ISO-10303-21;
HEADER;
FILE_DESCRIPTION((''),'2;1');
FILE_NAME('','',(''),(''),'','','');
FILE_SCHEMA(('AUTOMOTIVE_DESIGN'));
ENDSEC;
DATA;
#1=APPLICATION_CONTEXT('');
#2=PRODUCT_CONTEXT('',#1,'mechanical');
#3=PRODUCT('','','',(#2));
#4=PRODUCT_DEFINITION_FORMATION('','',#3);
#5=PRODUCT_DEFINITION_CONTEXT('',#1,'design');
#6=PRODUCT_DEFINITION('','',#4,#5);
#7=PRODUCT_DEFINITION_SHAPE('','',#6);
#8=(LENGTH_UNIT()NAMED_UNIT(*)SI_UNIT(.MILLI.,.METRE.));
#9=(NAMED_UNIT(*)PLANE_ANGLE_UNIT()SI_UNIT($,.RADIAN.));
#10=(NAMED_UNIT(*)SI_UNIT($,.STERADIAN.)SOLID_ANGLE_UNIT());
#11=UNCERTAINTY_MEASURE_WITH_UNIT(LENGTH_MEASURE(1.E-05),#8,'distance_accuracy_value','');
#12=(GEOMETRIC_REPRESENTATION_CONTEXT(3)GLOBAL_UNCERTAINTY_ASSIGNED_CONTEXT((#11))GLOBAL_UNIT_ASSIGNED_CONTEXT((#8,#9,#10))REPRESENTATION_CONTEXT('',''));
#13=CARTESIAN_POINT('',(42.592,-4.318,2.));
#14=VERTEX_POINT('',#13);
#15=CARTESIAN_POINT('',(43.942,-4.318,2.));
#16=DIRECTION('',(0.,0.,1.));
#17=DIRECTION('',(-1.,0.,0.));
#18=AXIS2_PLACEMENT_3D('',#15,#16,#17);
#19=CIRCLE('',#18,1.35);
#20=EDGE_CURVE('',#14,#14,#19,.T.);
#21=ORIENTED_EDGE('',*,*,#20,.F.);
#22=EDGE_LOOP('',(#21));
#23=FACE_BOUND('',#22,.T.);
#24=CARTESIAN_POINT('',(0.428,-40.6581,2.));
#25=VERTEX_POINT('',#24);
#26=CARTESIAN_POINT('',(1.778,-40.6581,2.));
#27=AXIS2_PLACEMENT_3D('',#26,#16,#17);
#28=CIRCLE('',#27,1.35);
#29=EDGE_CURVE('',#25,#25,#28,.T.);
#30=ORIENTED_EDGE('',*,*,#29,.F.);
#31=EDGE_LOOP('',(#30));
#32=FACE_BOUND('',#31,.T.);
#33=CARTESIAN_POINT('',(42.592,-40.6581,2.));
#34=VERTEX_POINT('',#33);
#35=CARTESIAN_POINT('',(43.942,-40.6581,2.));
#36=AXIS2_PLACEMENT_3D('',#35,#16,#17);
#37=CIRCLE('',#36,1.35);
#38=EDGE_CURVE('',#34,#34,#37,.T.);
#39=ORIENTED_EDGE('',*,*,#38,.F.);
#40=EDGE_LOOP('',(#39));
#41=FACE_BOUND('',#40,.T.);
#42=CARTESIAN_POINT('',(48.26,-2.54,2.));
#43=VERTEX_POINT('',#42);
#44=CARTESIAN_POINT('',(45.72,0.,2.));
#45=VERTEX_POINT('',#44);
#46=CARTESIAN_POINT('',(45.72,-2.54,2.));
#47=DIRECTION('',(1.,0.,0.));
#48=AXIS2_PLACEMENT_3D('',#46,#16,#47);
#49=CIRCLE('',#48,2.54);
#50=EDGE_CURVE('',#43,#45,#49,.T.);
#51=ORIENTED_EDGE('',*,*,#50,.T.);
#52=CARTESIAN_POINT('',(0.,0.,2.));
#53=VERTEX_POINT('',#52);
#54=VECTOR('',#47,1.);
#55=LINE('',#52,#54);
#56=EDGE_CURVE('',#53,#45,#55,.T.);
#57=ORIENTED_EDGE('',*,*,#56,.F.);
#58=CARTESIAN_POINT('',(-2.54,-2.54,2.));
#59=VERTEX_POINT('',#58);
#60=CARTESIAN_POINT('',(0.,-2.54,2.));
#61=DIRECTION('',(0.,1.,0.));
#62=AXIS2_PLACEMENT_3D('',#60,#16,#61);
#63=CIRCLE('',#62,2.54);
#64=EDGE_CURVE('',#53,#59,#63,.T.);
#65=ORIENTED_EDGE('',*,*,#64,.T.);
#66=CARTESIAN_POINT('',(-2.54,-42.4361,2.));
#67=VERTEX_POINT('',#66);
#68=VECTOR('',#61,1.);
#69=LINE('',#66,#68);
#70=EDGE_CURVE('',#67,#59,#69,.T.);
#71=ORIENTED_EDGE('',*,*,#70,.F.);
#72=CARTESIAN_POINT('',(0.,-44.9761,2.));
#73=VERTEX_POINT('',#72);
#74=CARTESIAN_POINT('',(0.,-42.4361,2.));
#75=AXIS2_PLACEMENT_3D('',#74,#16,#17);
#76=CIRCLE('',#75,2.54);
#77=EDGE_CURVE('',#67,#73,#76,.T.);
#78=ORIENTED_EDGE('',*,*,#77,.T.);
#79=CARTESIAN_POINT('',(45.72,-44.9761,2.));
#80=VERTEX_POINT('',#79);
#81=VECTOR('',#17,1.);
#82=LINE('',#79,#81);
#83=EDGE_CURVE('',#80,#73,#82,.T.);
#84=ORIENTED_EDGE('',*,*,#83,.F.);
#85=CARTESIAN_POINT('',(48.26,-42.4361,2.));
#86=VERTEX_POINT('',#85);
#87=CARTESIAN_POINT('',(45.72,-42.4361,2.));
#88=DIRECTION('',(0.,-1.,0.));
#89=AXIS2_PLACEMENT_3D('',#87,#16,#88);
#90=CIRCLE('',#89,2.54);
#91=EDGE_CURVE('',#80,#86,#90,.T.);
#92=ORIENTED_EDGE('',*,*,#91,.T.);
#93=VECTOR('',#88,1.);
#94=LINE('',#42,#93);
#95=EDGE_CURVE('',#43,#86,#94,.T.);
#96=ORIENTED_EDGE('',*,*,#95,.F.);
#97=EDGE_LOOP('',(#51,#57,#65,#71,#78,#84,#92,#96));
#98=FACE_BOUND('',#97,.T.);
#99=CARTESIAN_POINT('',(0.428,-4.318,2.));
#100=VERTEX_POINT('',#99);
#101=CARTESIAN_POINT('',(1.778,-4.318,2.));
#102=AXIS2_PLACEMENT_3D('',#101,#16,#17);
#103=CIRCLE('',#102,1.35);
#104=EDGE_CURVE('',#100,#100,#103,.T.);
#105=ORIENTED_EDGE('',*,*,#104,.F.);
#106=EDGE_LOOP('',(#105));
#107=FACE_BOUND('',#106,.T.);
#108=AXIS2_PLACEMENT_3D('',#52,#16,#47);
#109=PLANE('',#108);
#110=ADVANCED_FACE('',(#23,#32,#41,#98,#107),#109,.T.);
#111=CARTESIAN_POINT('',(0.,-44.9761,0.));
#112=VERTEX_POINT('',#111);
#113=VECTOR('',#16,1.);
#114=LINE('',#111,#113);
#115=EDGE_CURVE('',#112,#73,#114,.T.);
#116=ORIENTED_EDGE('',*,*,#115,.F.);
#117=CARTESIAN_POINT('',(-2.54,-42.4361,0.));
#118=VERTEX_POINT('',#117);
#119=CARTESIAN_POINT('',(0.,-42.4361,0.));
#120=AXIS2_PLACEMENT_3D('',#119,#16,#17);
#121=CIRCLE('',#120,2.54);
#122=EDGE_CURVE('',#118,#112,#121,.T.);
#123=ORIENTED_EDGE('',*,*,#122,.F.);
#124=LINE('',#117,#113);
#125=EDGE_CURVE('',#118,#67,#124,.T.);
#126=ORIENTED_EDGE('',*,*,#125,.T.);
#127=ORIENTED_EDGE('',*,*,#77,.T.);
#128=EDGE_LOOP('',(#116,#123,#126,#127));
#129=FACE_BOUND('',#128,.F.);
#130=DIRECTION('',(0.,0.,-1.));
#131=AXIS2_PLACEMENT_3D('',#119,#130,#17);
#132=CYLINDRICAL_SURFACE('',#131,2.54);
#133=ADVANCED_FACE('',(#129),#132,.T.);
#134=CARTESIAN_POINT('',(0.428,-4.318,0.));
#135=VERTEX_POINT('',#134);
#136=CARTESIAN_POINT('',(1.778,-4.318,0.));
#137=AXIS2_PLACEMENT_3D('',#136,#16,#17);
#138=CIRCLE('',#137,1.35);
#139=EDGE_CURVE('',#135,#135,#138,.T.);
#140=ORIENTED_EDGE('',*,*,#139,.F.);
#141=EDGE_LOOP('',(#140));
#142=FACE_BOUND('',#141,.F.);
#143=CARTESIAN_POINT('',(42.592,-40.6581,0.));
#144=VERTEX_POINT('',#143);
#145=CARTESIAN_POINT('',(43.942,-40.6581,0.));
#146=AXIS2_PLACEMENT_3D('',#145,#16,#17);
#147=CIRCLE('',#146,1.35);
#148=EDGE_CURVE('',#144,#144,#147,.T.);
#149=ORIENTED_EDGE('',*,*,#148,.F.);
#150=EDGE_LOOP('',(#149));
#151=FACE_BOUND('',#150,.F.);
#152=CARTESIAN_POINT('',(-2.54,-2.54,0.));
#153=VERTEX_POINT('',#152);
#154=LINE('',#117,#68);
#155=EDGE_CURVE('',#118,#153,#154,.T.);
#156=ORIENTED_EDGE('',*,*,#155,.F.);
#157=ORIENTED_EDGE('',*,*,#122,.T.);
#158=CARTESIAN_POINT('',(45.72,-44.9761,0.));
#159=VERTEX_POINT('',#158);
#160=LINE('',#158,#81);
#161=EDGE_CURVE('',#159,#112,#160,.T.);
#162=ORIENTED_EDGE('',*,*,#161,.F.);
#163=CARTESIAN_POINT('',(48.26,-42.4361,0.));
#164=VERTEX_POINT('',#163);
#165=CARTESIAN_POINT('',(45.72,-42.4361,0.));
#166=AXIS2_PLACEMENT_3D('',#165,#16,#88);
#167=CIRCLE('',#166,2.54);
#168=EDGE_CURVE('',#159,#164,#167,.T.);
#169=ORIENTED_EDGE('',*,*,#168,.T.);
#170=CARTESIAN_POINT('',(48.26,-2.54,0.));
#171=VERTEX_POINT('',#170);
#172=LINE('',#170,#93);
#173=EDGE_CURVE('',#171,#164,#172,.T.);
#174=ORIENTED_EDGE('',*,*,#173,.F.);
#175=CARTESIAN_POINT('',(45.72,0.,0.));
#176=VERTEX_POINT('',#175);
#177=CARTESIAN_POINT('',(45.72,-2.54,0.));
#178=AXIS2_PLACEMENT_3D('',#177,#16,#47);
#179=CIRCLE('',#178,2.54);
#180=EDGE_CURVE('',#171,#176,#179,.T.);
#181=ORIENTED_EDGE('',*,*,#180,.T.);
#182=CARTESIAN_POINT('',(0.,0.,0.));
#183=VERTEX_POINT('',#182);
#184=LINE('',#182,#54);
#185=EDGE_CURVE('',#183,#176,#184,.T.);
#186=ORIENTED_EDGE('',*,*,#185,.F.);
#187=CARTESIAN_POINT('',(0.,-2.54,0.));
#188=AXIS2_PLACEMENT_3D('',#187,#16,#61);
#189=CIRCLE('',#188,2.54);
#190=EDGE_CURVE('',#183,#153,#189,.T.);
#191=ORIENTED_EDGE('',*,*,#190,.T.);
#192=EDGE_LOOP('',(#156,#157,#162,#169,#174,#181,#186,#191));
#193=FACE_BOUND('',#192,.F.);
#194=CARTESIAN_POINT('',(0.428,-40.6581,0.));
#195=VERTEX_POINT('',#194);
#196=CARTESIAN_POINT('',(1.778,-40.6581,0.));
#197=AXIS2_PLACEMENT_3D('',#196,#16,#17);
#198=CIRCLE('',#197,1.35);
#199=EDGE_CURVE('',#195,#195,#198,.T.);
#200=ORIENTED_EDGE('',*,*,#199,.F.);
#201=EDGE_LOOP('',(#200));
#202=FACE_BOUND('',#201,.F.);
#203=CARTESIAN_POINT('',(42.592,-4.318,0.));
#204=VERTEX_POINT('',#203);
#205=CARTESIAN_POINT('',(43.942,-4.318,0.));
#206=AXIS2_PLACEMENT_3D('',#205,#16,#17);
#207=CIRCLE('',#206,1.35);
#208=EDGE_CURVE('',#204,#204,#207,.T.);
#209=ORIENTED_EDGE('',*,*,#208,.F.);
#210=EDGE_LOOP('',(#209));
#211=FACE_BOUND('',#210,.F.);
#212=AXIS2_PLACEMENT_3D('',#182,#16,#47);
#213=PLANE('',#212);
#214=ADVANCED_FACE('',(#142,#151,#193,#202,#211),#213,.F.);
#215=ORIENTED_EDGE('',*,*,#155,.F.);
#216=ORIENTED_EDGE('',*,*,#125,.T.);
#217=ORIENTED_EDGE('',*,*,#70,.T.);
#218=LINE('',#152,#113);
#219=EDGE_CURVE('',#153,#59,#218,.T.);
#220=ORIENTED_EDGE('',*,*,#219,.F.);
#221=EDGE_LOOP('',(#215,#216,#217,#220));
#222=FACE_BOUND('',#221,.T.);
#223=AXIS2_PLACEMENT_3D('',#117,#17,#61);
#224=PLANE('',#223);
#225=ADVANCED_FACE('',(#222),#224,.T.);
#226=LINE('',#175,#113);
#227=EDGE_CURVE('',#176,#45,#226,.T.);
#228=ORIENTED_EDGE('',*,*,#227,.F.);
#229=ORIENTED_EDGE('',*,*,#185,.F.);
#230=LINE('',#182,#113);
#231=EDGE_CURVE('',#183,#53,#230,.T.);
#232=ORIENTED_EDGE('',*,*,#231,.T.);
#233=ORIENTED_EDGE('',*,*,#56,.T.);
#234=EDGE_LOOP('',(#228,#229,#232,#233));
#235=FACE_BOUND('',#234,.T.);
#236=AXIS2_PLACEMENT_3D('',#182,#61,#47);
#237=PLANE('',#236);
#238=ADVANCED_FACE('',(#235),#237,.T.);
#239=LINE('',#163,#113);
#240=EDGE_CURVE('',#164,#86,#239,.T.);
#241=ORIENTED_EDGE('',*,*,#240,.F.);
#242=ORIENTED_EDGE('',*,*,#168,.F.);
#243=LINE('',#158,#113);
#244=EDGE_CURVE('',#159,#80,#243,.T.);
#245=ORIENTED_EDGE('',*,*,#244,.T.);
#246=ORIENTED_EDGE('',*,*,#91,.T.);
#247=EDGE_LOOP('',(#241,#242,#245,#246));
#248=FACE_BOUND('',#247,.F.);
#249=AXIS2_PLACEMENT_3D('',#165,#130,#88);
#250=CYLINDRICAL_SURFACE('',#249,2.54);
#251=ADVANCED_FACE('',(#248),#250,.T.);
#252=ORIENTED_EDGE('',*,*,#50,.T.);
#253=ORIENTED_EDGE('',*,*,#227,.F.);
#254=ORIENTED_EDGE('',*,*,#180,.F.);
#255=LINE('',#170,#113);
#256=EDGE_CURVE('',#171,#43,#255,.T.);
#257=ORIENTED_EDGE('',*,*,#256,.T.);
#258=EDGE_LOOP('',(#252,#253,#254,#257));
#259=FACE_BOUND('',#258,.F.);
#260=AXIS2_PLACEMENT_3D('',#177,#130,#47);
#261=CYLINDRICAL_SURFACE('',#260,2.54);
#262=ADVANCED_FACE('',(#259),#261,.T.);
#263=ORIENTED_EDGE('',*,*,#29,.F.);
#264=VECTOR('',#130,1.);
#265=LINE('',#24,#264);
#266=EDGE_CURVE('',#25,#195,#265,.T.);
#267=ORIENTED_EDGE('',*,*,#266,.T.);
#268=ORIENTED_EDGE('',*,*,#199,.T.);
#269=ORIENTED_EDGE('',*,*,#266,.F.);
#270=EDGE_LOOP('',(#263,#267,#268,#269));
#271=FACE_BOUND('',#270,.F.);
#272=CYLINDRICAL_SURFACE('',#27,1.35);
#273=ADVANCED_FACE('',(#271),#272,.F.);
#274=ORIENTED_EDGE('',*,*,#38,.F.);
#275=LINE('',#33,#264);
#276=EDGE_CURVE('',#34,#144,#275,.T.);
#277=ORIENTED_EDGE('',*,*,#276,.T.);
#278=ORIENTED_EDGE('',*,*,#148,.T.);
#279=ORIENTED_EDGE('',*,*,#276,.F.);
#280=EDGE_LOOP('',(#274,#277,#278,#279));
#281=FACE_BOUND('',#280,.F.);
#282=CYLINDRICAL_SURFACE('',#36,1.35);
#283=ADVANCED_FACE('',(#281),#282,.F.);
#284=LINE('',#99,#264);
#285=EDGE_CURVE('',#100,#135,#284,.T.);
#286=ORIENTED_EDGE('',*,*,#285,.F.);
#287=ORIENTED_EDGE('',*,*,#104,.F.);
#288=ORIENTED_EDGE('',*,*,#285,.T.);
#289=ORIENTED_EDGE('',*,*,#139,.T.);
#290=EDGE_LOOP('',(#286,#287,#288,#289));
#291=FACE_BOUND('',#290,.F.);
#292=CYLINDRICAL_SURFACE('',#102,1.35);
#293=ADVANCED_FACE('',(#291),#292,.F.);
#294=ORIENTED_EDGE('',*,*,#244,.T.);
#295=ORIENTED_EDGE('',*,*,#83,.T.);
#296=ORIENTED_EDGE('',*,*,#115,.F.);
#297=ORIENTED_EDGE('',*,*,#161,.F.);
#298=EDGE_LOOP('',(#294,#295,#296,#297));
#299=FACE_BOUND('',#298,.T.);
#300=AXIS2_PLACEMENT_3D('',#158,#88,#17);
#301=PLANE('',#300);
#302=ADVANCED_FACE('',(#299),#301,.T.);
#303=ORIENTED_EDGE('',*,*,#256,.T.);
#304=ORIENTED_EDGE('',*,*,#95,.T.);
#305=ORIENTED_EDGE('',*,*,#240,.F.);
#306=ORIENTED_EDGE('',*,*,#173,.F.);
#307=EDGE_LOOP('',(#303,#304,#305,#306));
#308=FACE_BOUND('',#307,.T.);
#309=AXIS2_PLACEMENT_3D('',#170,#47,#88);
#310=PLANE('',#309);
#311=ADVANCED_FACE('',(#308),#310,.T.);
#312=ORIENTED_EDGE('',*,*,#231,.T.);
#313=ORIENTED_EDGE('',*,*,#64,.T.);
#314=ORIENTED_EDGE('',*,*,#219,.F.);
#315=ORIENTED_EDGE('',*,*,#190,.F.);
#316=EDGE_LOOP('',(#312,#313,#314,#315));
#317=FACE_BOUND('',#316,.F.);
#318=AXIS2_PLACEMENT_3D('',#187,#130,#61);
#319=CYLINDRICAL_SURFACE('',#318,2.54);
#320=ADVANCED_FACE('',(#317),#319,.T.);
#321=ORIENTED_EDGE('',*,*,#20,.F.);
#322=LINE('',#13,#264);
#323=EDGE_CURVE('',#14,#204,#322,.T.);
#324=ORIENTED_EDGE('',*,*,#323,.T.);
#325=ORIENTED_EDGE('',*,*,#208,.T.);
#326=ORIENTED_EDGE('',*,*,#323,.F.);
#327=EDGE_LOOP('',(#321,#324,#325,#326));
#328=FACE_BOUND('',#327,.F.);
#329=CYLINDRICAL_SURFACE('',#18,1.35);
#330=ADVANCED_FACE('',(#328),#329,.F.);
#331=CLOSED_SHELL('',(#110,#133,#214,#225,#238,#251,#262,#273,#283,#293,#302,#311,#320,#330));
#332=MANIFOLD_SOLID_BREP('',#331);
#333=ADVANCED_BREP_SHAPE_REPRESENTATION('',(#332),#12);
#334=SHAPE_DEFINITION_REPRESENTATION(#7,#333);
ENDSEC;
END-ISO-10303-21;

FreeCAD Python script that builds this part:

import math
import FreeCAD as App
import Part
import Sketcher

V = App.Vector
Q = App.Units.Quantity

doc = App.newDocument("Part")
body = doc.addObject("PartDesign::Body", "Body")

# Sketch on XY plane
sketch1 = body.newObject("Sketcher::SketchObject", "Sketch")
sketch1.AttachmentSupport = (doc.getObject("XY_Plane"), [""])
sketch1.MapMode = "FlatFace"
sketch1.addGeometry([
    Part.LineSegment(V(45.72, 0, 0), V(0, 0, 0)),  # 0
    Part.ArcOfCircle(Part.Circle(V(0, -2.54, 0), V(0, 0, 1), 2.54), math.radians(90), math.radians(180)),  # 1
    Part.LineSegment(V(-2.54, -2.54, 0), V(-2.54, -42.4361, 0)),  # 2
    Part.ArcOfCircle(Part.Circle(V(0, -42.4361, 0), V(0, 0, 1), 2.54), math.radians(180), math.radians(270)),  # 3
    Part.LineSegment(V(0, -44.9761, 0), V(45.72, -44.9761, 0)),  # 4
    Part.ArcOfCircle(Part.Circle(V(45.72, -42.4361, 0), V(0, 0, 1), 2.54), math.radians(-90), math.radians(0)),  # 5
    Part.LineSegment(V(48.26, -42.4361, 0), V(48.26, -2.54, 0)),  # 6
    Part.ArcOfCircle(Part.Circle(V(45.72, -2.54, 0), V(0, 0, 1), 2.54), math.radians(0), math.radians(90)),  # 7
], False)
sketch1.addConstraint([
    Sketcher.Constraint("Tangent", 0, 2, 1, 1),
    Sketcher.Constraint("Tangent", 1, 2, 2, 1),
    Sketcher.Constraint("Tangent", 2, 2, 3, 1),
    Sketcher.Constraint("Tangent", 3, 2, 4, 1),
    Sketcher.Constraint("Tangent", 4, 2, 5, 1),
    Sketcher.Constraint("Tangent", 5, 2, 6, 1),
    Sketcher.Constraint("Tangent", 6, 2, 7, 1),
    Sketcher.Constraint("Tangent", 7, 2, 0, 1),
    Sketcher.Constraint("Horizontal", 0),
    Sketcher.Constraint("Vertical", 2),
    Sketcher.Constraint("Horizontal", 4),
    Sketcher.Constraint("Vertical", 6),
    Sketcher.Constraint("Coincident", 0, 2, -1, 1),
    Sketcher.Constraint("Equal", 1, 3),
    Sketcher.Constraint("Equal", 3, 5),
    Sketcher.Constraint("Equal", 5, 7),
    Sketcher.Constraint("Radius", 1, Q("2.54 mm")),
    Sketcher.Constraint("DistanceX", 0, 2, 0, 1, Q("45.72 mm")),
    Sketcher.Constraint("DistanceY", 2, 2, 2, 1, Q("39.896 mm")),
])
pad1 = body.newObject("PartDesign::Pad", "Pad")
pad1.Profile = sketch1
pad1.Length = 2

# Sketch on XY plane
sketch2 = body.newObject("Sketcher::SketchObject", "Sketch001")
sketch2.AttachmentSupport = (doc.getObject("XY_Plane"), [""])
sketch2.MapMode = "FlatFace"
sketch2.AttachmentOffset = App.Placement(V(0, 0, 2), App.Rotation())
sketch2.addGeometry(Part.Circle(V(1.778, -4.318, 0), V(0, 0, 1), 1.35), False)
sketch2.addConstraint([
    Sketcher.Constraint("Diameter", 0, Q("2.7 mm")),
    Sketcher.Constraint("DistanceX", -1, 1, 0, 3, Q("1.778 mm")),
    Sketcher.Constraint("DistanceY", 0, 3, -1, 1, Q("4.318 mm")),
])
pocket1 = body.newObject("PartDesign::Pocket", "Pocket")
pocket1.Profile = sketch2
pocket1.Length = 4

# Sketch on XY plane
sketch3 = body.newObject("Sketcher::SketchObject", "Sketch002")
sketch3.AttachmentSupport = (doc.getObject("XY_Plane"), [""])
sketch3.MapMode = "FlatFace"
sketch3.AttachmentOffset = App.Placement(V(0, 0, 2), App.Rotation())
sketch3.addGeometry(Part.Circle(V(43.942, -4.318, 0), V(0, 0, 1), 1.35), False)
sketch3.addConstraint([
    Sketcher.Constraint("Diameter", 0, Q("2.7 mm")),
    Sketcher.Constraint("DistanceX", -1, 1, 0, 3, Q("43.942 mm")),
    Sketcher.Constraint("DistanceY", 0, 3, -1, 1, Q("4.318 mm")),
])
pocket2 = body.newObject("PartDesign::Pocket", "Pocket001")
pocket2.Profile = sketch3
pocket2.Length = 4

# Sketch on XY plane
sketch4 = body.newObject("Sketcher::SketchObject", "Sketch003")
sketch4.AttachmentSupport = (doc.getObject("XY_Plane"), [""])
sketch4.MapMode = "FlatFace"
sketch4.AttachmentOffset = App.Placement(V(0, 0, 2), App.Rotation())
sketch4.addGeometry(Part.Circle(V(1.778, -40.6581, 0), V(0, 0, 1), 1.35), False)
sketch4.addConstraint([
    Sketcher.Constraint("Diameter", 0, Q("2.7 mm")),
    Sketcher.Constraint("DistanceX", -1, 1, 0, 3, Q("1.778 mm")),
    Sketcher.Constraint("DistanceY", 0, 3, -1, 1, Q("40.658 mm")),
])
pocket3 = body.newObject("PartDesign::Pocket", "Pocket002")
pocket3.Profile = sketch4
pocket3.Length = 4

# Sketch on XY plane
sketch5 = body.newObject("Sketcher::SketchObject", "Sketch004")
sketch5.AttachmentSupport = (doc.getObject("XY_Plane"), [""])
sketch5.MapMode = "FlatFace"
sketch5.AttachmentOffset = App.Placement(V(0, 0, 2), App.Rotation())
sketch5.addGeometry(Part.Circle(V(43.942, -40.6581, 0), V(0, 0, 1), 1.35), False)
sketch5.addConstraint([
    Sketcher.Constraint("Diameter", 0, Q("2.7 mm")),
    Sketcher.Constraint("DistanceX", -1, 1, 0, 3, Q("43.942 mm")),
    Sketcher.Constraint("DistanceY", 0, 3, -1, 1, Q("40.658 mm")),
])
pocket4 = body.newObject("PartDesign::Pocket", "Pocket003")
pocket4.Profile = sketch5
pocket4.Length = 4

doc.recompute()
